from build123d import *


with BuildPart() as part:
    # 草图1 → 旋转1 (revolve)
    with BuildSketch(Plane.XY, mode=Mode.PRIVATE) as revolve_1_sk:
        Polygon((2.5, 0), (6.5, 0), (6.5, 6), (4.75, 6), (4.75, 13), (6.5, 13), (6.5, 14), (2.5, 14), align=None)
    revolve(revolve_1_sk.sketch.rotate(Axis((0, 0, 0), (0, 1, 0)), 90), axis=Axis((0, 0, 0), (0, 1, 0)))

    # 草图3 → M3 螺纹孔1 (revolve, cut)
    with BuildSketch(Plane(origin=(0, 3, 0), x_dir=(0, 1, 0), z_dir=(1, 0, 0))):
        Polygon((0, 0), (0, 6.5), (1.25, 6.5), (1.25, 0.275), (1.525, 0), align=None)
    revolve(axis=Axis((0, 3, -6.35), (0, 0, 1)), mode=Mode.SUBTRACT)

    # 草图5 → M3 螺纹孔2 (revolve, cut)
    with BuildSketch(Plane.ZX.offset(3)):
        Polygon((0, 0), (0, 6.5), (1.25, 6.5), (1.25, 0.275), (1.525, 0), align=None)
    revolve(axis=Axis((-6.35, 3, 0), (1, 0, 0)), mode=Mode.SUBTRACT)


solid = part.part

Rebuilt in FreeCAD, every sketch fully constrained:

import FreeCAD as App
import Part
import Sketcher

V = App.Vector
Q = App.Units.Quantity


def add_polygon(sketch, points):
    """Adds a closed chain of lines whose ends are joined by coincident constraints."""
    first, n = sketch.GeometryCount, len(points)
    for a, b in zip(points, points[1:] + points[:1]):
        sketch.addGeometry(Part.LineSegment(App.Vector(*a, 0), App.Vector(*b, 0)), False)
    for i in range(n):
        sketch.addConstraint(Sketcher.Constraint("Coincident", first + i, 2, first + (i + 1) % n, 1))

doc = App.newDocument("Part")
params = doc.addObject("Spreadsheet::Sheet", "Params")
for row, (alias, value) in enumerate([
    ("sketch1_width", "4 mm"),
    ("sketch1_height", "6 mm"),
    ("sketch1_height2", "7 mm"),
    ("sketch1_height3", "1 mm"),
    ("sketch1_width2", "1.75 mm"),
    ("revolution_angle", "360 deg"),
    ("sketch2_height", "6.5 mm"),
    ("sketch2_width", "1.25 mm"),
    ("groove_angle", "360 deg"),
    ("sketch3_width", "6.5 mm"),
    ("sketch3_height", "1.25 mm"),
    ("groove2_angle", "360 deg"),
], start=1):
    params.set(f"A{row}", alias)
    params.set(f"B{row}", "=" + value)
    params.setAlias(f"B{row}", alias)

body = doc.addObject("PartDesign::Body", "Body")

# Sketch on XY plane
sketch1 = doc.addObject("Sketcher::SketchObject", "Sketch")
body.addObject(sketch1)
sketch1.AttachmentSupport = (doc.XY_Plane, [""])
sketch1.MapMode = "FlatFace"
add_polygon(sketch1, [(2.5, 0), (6.5, 0), (6.5, 6), (4.8, 6), (4.8, 13), (6.5, 13), (6.5, 14), (2.5, 14)])  # lines 0-7
sketch1.addConstraint(Sketcher.Constraint("Horizontal", 0))
sketch1.addConstraint(Sketcher.Constraint("Vertical", 1))
sketch1.addConstraint(Sketcher.Constraint("Horizontal", 2))
sketch1.addConstraint(Sketcher.Constraint("Vertical", 3))
sketch1.addConstraint(Sketcher.Constraint("Horizontal", 4))
sketch1.addConstraint(Sketcher.Constraint("Vertical", 5))
sketch1.addConstraint(Sketcher.Constraint("Horizontal", 6))
sketch1.addConstraint(Sketcher.Constraint("Vertical", 7))
sketch1.addConstraint(Sketcher.Constraint("PointOnObject", 0, 2, -1))
sketch1.addConstraint(Sketcher.Constraint("Vertical", 1, 2, 4, 2))
sketch1.addConstraint(Sketcher.Constraint("DistanceX", 0, 1, 0, 2, Q("4 mm")))
sketch1.addConstraint(Sketcher.Constraint("DistanceY", 1, 1, 1, 2, Q("6 mm")))
sketch1.addConstraint(Sketcher.Constraint("DistanceY", 3, 1, 3, 2, Q("7 mm")))
sketch1.addConstraint(Sketcher.Constraint("DistanceY", 5, 1, 5, 2, Q("1 mm")))
sketch1.addConstraint(Sketcher.Constraint("DistanceX", 2, 2, 2, 1, Q("1.75 mm")))
sketch1.addConstraint(Sketcher.Constraint("DistanceX", -1, 1, 0, 2, Q("6.5 mm")))
sketch1.setExpression("Constraints[18]", "Params.sketch1_width")
sketch1.setExpression("Constraints[19]", "Params.sketch1_height")
sketch1.setExpression("Constraints[20]", "Params.sketch1_height2")
sketch1.setExpression("Constraints[21]", "Params.sketch1_height3")
sketch1.setExpression("Constraints[22]", "Params.sketch1_width2")
revolution = doc.addObject("PartDesign::Revolution", "Revolution")
body.addObject(revolution)
revolution.Profile = sketch1
revolution.ReferenceAxis = (sketch1, ["V_Axis"])
revolution.setExpression("Angle", "Params.revolution_angle")

# Sketch on YZ plane
sketch2 = doc.addObject("Sketcher::SketchObject", "Sketch001")
body.addObject(sketch2)
sketch2.AttachmentSupport = (doc.YZ_Plane, [""])
sketch2.MapMode = "FlatFace"
add_polygon(sketch2, [(3, 6.5), (3, 0), (4.53, 0), (4.25, 0.28), (4.25, 6.5)])  # lines 0-4
sketch2.addGeometry(Part.LineSegment(V(3, 0, 0), V(3, 6.5, 0)), True)  # axis
sketch2.addConstraint(Sketcher.Constraint("Vertical", 0))
sketch2.addConstraint(Sketcher.Constraint("Horizontal", 1))
sketch2.addConstraint(Sketcher.Constraint("Vertical", 3))
sketch2.addConstraint(Sketcher.Constraint("Horizontal", 4))
sketch2.addConstraint(Sketcher.Constraint("Vertical", 5))
sketch2.addConstraint(Sketcher.Constraint("Coincident", 5, 1, 0, 2))
sketch2.addConstraint(Sketcher.Constraint("PointOnObject", 0, 2, -1))
sketch2.addConstraint(Sketcher.Constraint("Horizontal", 3, 2, 5, 2))
sketch2.addConstraint(Sketcher.Constraint("Angle", 2, Q("135 deg")))
sketch2.addConstraint(Sketcher.Constraint("DistanceY", 0, 2, 0, 1, Q("6.5 mm")))
sketch2.addConstraint(Sketcher.Constraint("DistanceX", -1, 1, 0, 2, Q("3 mm")))
sketch2.addConstraint(Sketcher.Constraint("DistanceX", 4, 2, 4, 1, Q("1.25 mm")))
sketch2.addConstraint(Sketcher.Constraint("DistanceX", 1, 1, 1, 2, Q("1.525 mm")))
sketch2.setExpression("Constraints[14]", "Params.sketch2_height")
sketch2.setExpression("Constraints[16]", "Params.sketch2_width")
groove = doc.addObject("PartDesign::Groove", "Groove")
body.addObject(groove)
groove.Profile = sketch2
groove.ReferenceAxis = (sketch2, ["Axis0"])
groove.setExpression("Angle", "Params.groove_angle")

# Sketch on XZ plane
sketch3 = doc.addObject("Sketcher::SketchObject", "Sketch002")
body.addObject(sketch3)
sketch3.AttachmentSupport = (doc.XZ_Plane, [""])
sketch3.MapMode = "FlatFace"
sketch3.AttachmentOffset = App.Placement(V(0, 0, -3), App.Rotation())
add_polygon(sketch3, [(6.5, 0), (0, 0), (0, 1.52), (0.28, 1.25), (6.5, 1.25)])  # lines 0-4
sketch3.addConstraint(Sketcher.Constraint("Horizontal", 0))
sketch3.addConstraint(Sketcher.Constraint("Vertical", 1))
sketch3.addConstraint(Sketcher.Constraint("Horizontal", 3))
sketch3.addConstraint(Sketcher.Constraint("Vertical", 4))
sketch3.addConstraint(Sketcher.Constraint("Coincident", 0, 2, -1, 1))
sketch3.addConstraint(Sketcher.Constraint("Angle", 2, Q("-45 deg")))
sketch3.addConstraint(Sketcher.Constraint("DistanceX", 0, 2, 0, 1, Q("6.5 mm")))
sketch3.addConstraint(Sketcher.Constraint("DistanceY", 4, 2, 4, 1, Q("1.25 mm")))
sketch3.addConstraint(Sketcher.Constraint("DistanceX", 3, 1, 3, 2, Q("6.225 mm")))
sketch3.setExpression("Constraints[11]", "Params.sketch3_width")
sketch3.setExpression("Constraints[12]", "Params.sketch3_height")
groove2 = doc.addObject("PartDesign::Groove", "Groove001")
body.addObject(groove2)
groove2.Profile = sketch3
groove2.ReferenceAxis = (sketch3, ["H_Axis"])
groove2.setExpression("Angle", "Params.groove2_angle")

doc.recompute()
